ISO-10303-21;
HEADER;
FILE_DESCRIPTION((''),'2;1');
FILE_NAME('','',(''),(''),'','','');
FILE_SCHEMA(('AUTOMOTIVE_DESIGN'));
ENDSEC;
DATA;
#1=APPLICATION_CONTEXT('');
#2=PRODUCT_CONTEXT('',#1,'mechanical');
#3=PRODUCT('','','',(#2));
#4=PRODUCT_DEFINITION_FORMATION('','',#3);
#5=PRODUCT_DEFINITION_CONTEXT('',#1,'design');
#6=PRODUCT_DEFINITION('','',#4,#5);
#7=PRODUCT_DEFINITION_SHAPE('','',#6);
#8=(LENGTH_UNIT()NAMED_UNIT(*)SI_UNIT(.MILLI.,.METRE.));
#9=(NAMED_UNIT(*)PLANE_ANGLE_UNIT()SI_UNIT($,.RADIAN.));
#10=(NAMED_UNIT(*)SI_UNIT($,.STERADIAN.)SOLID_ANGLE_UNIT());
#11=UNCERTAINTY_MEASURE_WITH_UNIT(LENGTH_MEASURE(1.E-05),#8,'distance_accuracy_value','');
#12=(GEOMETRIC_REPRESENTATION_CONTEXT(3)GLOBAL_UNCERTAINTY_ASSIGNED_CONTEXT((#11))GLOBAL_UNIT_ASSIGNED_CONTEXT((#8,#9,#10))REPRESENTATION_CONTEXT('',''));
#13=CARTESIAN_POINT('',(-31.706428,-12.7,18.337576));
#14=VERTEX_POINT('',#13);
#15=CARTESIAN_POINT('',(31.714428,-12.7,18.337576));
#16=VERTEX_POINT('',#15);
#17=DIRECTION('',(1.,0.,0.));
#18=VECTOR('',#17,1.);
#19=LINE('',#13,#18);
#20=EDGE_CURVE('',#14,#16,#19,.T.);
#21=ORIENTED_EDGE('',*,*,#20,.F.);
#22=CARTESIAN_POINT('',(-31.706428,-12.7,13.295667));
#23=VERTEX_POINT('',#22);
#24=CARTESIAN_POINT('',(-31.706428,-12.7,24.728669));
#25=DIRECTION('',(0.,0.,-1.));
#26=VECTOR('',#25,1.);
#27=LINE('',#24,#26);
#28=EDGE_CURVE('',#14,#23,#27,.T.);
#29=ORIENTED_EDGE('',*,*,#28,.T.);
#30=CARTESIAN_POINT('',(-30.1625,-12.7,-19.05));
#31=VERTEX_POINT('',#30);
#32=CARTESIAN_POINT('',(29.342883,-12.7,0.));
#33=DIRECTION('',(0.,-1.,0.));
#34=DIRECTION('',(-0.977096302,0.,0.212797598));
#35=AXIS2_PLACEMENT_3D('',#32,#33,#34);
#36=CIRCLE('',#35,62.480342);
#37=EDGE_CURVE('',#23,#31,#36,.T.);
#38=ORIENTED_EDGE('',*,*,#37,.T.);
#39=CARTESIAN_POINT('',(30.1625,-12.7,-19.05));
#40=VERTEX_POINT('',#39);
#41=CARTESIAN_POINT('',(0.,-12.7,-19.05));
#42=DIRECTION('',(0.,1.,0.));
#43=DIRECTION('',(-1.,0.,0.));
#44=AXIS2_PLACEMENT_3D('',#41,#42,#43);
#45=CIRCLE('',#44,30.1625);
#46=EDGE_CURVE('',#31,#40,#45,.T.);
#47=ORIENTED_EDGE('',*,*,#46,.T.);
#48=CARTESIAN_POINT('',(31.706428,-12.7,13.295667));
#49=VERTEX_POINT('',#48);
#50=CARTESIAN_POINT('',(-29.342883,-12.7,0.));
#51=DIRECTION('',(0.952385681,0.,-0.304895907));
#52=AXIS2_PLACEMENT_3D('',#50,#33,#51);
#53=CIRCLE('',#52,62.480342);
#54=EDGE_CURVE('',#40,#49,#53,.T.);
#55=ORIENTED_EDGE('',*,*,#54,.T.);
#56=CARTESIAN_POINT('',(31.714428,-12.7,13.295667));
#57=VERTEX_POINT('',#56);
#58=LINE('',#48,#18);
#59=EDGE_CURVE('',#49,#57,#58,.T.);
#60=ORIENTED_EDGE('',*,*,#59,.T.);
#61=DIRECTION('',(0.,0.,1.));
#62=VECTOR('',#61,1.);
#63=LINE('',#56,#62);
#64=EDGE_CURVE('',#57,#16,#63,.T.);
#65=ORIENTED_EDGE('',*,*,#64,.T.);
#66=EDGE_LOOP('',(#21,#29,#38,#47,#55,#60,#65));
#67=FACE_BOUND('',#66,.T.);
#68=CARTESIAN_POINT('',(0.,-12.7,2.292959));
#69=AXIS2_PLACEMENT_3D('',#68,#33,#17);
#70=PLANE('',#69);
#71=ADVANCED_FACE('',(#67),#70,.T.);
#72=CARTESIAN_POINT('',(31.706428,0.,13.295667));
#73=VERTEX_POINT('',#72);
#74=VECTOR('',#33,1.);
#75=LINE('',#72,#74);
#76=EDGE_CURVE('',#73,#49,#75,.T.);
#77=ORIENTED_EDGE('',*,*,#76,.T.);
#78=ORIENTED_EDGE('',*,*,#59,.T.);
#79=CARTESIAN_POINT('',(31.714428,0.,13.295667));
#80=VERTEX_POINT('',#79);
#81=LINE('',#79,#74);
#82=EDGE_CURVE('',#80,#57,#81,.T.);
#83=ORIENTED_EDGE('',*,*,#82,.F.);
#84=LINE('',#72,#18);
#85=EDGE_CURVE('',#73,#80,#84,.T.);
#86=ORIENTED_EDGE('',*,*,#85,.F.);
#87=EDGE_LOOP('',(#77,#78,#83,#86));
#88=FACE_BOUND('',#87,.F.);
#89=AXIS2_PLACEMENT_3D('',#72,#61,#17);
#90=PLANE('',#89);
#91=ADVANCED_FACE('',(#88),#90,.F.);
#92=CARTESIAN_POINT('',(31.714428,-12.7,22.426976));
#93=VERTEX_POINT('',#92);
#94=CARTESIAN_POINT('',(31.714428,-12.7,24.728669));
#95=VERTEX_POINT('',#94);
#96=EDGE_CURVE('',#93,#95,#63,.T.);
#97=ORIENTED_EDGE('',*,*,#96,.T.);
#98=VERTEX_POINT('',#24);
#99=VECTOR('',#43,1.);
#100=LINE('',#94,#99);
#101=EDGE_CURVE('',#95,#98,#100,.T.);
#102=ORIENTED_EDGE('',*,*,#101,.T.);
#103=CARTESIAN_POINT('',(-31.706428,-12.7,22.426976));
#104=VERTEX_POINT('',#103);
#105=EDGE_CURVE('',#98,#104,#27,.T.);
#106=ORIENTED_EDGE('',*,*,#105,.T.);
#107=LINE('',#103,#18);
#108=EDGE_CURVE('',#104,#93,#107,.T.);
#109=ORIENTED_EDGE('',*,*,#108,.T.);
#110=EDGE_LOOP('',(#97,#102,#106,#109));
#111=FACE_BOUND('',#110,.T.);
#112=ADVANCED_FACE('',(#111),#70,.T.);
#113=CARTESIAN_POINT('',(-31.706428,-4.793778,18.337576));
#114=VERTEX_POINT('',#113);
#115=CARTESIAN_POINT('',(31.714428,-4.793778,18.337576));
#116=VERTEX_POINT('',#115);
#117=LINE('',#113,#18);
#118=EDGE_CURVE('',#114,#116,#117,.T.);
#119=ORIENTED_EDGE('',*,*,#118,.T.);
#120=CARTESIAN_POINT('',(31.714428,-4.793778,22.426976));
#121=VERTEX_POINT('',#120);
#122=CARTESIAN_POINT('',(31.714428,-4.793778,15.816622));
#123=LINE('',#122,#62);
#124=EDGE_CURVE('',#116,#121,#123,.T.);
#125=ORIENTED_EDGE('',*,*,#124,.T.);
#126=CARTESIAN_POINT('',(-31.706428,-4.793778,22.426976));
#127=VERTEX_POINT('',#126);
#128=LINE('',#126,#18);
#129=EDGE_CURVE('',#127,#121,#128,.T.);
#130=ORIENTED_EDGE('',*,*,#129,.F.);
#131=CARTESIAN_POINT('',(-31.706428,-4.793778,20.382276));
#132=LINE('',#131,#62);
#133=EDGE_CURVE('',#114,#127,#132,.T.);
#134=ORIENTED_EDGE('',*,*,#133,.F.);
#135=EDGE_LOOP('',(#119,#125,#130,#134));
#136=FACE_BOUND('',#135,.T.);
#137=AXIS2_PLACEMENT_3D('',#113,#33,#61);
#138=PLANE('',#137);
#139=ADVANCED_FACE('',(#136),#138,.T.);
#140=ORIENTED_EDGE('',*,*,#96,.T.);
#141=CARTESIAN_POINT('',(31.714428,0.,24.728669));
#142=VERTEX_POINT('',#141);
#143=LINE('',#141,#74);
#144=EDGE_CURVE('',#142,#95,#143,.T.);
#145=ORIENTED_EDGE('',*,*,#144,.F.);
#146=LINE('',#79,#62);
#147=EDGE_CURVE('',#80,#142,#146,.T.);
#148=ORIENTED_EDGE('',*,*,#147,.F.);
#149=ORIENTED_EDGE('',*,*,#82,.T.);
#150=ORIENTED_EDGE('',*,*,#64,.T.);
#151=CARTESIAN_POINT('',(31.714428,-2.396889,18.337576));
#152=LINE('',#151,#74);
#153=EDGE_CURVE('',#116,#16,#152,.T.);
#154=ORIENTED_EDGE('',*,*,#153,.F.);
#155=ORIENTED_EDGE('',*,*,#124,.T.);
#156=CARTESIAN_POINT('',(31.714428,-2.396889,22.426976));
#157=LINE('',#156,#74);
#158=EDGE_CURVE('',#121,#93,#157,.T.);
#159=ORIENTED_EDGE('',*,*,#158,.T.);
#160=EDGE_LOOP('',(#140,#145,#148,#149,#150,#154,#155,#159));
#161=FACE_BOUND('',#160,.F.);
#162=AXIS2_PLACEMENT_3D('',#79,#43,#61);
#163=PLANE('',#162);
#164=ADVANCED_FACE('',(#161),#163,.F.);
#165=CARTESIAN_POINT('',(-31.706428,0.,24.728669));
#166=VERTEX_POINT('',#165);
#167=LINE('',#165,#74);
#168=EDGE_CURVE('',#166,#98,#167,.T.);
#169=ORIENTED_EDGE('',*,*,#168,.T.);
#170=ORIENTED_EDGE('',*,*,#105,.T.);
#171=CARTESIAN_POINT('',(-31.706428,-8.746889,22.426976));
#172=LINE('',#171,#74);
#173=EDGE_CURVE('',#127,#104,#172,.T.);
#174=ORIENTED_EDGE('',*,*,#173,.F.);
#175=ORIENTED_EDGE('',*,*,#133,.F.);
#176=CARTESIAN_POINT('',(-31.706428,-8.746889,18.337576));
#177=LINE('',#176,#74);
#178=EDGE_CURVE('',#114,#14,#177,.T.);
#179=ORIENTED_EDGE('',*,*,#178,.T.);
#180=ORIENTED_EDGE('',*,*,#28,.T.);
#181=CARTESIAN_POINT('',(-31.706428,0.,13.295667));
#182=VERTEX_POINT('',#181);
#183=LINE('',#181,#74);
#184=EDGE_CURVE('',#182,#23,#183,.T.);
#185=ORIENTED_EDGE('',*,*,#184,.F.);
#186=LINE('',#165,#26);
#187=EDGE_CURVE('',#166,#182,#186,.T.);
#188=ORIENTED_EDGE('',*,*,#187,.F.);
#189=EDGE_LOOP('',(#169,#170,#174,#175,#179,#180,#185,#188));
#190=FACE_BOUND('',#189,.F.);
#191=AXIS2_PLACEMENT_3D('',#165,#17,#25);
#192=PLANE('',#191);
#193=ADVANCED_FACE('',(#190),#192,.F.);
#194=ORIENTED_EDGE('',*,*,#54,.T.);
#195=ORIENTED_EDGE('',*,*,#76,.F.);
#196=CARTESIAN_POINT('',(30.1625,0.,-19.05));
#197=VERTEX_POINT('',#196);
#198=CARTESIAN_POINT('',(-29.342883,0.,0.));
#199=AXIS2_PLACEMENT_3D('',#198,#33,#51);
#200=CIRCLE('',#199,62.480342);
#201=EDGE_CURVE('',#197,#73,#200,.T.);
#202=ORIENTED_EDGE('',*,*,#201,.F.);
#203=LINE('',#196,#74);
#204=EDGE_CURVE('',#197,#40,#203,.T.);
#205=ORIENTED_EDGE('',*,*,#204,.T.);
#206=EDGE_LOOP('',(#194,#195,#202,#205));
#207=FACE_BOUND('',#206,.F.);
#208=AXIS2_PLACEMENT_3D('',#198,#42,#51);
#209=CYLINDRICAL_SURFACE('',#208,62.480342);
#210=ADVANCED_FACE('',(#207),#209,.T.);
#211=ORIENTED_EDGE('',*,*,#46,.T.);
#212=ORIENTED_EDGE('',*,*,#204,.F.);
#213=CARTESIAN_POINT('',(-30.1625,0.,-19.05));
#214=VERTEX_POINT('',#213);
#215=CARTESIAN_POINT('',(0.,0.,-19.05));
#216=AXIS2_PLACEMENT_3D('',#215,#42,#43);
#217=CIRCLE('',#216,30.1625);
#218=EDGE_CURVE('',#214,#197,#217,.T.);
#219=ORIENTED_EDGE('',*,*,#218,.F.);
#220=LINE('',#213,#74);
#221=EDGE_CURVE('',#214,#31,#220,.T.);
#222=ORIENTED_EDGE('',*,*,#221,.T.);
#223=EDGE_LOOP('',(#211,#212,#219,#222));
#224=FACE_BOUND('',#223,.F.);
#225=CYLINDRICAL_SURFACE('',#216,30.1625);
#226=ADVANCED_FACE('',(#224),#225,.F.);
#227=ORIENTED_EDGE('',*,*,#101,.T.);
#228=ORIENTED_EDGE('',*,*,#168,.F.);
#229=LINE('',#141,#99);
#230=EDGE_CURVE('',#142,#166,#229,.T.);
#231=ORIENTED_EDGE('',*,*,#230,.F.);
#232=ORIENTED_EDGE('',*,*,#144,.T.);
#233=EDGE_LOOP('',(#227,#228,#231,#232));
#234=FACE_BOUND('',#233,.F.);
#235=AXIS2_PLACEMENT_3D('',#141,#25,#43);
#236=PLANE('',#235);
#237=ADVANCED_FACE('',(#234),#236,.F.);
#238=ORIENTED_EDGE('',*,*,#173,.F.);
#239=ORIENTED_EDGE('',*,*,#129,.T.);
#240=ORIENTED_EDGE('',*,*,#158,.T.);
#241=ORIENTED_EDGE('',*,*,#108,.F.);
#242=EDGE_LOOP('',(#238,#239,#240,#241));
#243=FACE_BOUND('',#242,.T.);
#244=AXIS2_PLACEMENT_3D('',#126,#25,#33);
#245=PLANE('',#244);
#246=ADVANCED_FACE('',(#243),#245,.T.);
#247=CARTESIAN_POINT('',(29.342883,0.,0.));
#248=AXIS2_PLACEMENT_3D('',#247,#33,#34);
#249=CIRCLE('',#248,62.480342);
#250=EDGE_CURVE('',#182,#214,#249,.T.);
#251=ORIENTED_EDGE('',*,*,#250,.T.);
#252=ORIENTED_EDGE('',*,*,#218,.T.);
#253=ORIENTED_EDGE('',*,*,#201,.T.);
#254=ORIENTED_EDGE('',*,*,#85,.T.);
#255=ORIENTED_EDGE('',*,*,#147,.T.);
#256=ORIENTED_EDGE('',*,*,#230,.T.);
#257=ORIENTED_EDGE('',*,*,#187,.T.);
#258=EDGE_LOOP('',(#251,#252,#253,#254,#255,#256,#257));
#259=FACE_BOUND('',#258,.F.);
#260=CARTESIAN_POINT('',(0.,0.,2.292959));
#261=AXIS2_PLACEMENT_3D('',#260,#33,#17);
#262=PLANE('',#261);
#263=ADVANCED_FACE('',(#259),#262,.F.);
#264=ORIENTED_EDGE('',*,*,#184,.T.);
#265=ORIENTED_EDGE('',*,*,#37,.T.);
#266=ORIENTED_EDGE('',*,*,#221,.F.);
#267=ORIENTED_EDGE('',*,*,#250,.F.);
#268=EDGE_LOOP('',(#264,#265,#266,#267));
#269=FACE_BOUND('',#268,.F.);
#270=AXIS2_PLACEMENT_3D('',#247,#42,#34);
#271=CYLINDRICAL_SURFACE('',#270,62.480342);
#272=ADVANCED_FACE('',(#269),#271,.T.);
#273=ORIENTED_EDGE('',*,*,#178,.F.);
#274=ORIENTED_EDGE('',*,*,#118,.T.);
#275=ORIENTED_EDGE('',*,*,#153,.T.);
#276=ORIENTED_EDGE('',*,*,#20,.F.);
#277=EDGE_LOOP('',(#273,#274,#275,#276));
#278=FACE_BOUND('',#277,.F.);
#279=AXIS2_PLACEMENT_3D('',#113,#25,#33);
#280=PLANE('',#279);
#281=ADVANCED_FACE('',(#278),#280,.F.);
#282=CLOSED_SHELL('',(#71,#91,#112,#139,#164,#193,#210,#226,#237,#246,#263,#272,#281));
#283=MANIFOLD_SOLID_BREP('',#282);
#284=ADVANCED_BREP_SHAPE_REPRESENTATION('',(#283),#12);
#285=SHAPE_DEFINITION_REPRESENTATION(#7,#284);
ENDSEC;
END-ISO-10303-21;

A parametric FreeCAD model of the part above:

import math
import FreeCAD as App
import Part
import Sketcher

V = App.Vector
Q = App.Units.Quantity

doc = App.newDocument("Part")
body = doc.addObject("PartDesign::Body", "Body")

# Sketch on XZ plane
sketch1 = body.newObject("Sketcher::SketchObject", "Sketch")
sketch1.AttachmentSupport = (doc.getObject("XZ_Plane"), [""])
sketch1.MapMode = "FlatFace"
sketch1.addGeometry([
    Part.ArcOfCircle(Part.Circle(V(0, -19.05, 0), V(0, 0, 1), 30.1625), math.radians(0), math.radians(180)),  # 0
    Part.ArcOfCircle(Part.Circle(V(-29.342883, 0, 0), V(0, 0, 1), 62.480342), math.radians(-17.751902), math.radians(12.286349)),  # 1
    Part.LineSegment(V(31.706428, 13.295667, 0), V(31.714428, 13.295667, 0)),  # 2
    Part.LineSegment(V(31.714428, 13.295667, 0), V(31.714428, 24.728669, 0)),  # 3
    Part.LineSegment(V(31.714428, 24.728669, 0), V(-31.706428, 24.728669, 0)),  # 4
    Part.LineSegment(V(-31.706428, 24.728669, 0), V(-31.706428, 13.295667, 0)),  # 5
    Part.ArcOfCircle(Part.Circle(V(29.342883, 0, 0), V(0, 0, 1), 62.480342), math.radians(167.713651), math.radians(197.751902)),  # 6
], False)
sketch1.addConstraint([
    Sketcher.Constraint("Coincident", 0, 1, 1, 1),
    Sketcher.Constraint("Coincident", 1, 2, 2, 1),
    Sketcher.Constraint("Coincident", 2, 2, 3, 1),
    Sketcher.Constraint("Coincident", 3, 2, 4, 1),
    Sketcher.Constraint("Coincident", 4, 2, 5, 1),
    Sketcher.Constraint("Coincident", 5, 2, 6, 1),
    Sketcher.Constraint("Coincident", 6, 2, 0, 2),
    Sketcher.Constraint("Horizontal", 2),
    Sketcher.Constraint("Vertical", 3),
    Sketcher.Constraint("Horizontal", 4),
    Sketcher.Constraint("Vertical", 5),
    Sketcher.Constraint("Equal", 1, 6),
    Sketcher.Constraint("Symmetric", 1, 3, 6, 3, -1, 1),
    Sketcher.Constraint("Symmetric", 1, 2, 5, 2, -2),
    Sketcher.Constraint("PointOnObject", 0, 3, -2),
    Sketcher.Constraint("Radius", 0, Q("1.1875 in")),
    Sketcher.Constraint("DistanceY", 0, 3, -1, 1, Q("0.75 in")),
    Sketcher.Constraint("DistanceY", 0, 1, -1, 1, Q("0.75 in")),
    Sketcher.Constraint("Radius", 1, 62.480342),
    Sketcher.Constraint("DistanceX", 2, 1, 2, 2, 0.008),
    Sketcher.Constraint("DistanceY", 1, 2, 3, 2, 11.433002),
    Sketcher.Constraint("DistanceX", 4, 2, 4, 1, 63.420856),
])
pad1 = body.newObject("PartDesign::Pad", "Pad")
pad1.Profile = sketch1
pad1.Length = Q("0.5 in")

# Sketch on YZ plane
sketch2 = body.newObject("Sketcher::SketchObject", "Sketch001")
sketch2.AttachmentSupport = (doc.getObject("YZ_Plane"), [""])
sketch2.MapMode = "FlatFace"
sketch2.AttachmentOffset = App.Placement(V(0, 0, -31.706428), App.Rotation())
sketch2.addGeometry([
    Part.LineSegment(V(-4.793778, 22.426976, 0), V(-4.793778, 18.337576, 0)),
    Part.LineSegment(V(-4.793778, 18.337576, 0), V(-12.7, 18.337576, 0)),
    Part.LineSegment(V(-12.7, 18.337576, 0), V(-12.7, 22.426976, 0)),
    Part.LineSegment(V(-12.7, 22.426976, 0), V(-4.793778, 22.426976, 0)),
], False)
sketch2.addConstraint([
    Sketcher.Constraint("Coincident", 0, 2, 1, 1),
    Sketcher.Constraint("Coincident", 1, 2, 2, 1),
    Sketcher.Constraint("Coincident", 2, 2, 3, 1),
    Sketcher.Constraint("Coincident", 3, 2, 0, 1),
    Sketcher.Constraint("Vertical", 0),
    Sketcher.Constraint("Horizontal", 1),
    Sketcher.Constraint("Vertical", 2),
    Sketcher.Constraint("Horizontal", 3),
    Sketcher.Constraint("DistanceX", 1, 2, -1, 1, Q("0.5 in")),
    Sketcher.Constraint("DistanceY", 0, 2, 0, 1, Q("0.161 in")),
    Sketcher.Constraint("DistanceX", 1, 2, 1, 1, 7.906222),
    Sketcher.Constraint("DistanceY", -1, 1, 0, 2, 18.337576),
])
pocket1 = body.newObject("PartDesign::Pocket", "Pocket")
pocket1.Profile = sketch2
pocket1.Type = "ThroughAll"
pocket1.Reversed = True

doc.recompute()
